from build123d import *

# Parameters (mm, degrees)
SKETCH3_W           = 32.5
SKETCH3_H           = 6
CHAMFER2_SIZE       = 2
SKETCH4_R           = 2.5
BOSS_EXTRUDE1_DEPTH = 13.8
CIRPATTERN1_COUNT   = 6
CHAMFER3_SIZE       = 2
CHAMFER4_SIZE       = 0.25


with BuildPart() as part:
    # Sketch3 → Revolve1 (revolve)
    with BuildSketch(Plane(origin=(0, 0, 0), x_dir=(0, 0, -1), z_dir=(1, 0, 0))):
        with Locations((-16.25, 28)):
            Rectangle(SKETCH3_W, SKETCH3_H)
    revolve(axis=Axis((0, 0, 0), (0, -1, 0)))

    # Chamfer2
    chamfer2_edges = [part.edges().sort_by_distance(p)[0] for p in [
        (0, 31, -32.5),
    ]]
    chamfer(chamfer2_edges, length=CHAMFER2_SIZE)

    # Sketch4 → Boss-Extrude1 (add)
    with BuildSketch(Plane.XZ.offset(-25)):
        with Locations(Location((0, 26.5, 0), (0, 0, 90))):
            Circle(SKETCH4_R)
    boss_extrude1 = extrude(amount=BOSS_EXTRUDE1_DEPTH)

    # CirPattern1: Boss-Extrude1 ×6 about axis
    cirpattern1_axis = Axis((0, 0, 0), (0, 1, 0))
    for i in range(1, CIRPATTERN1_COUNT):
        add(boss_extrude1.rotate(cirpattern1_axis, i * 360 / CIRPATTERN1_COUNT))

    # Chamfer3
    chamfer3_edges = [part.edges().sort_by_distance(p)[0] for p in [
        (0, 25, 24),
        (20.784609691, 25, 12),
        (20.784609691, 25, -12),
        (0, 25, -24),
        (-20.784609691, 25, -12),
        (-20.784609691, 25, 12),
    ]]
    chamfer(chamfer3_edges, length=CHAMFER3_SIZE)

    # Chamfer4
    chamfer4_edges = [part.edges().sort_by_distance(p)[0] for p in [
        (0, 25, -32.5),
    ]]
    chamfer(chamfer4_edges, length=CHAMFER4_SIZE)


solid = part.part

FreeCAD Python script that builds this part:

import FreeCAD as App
import Part
import Sketcher
from FreeCAD import Vector


def edges_at(feature, points):
    """Names of the edges that pass closest to the given points."""
    edges = feature.Shape.Edges
    near = lambda p: min(range(len(edges)), key=lambda i: edges[i].distToShape(Part.Vertex(*p))[0])
    return sorted({f"Edge{near(p) + 1}" for p in points})


def add_polygon(sketch, points):
    """Adds a closed chain of lines whose ends are joined by coincident constraints."""
    first, n = sketch.GeometryCount, len(points)
    for a, b in zip(points, points[1:] + points[:1]):
        sketch.addGeometry(Part.LineSegment(App.Vector(*a, 0), App.Vector(*b, 0)), False)
    for i in range(n):
        sketch.addConstraint(Sketcher.Constraint("Coincident", first + i, 2, first + (i + 1) % n, 1))

doc = App.newDocument("Part")
params = doc.addObject("Spreadsheet::Sheet", "Params")
for row, (alias, value) in enumerate([
    ("sketch1_width", "6 mm"),
    ("sketch1_height", "32.5 mm"),
    ("revolution_angle", "360 deg"),
    ("chamfer_size", "2 mm"),
    ("sketch2_diameter", "5 mm"),
    ("pad1_length", "13.8 mm"),
    ("chamfer2_size", "2 mm"),
    ("chamfer3_size", "0.25 mm"),
], start=1):
    params.set(f"A{row}", alias)
    params.set(f"B{row}", "=" + value)
    params.setAlias(f"B{row}", alias)

body = doc.addObject("PartDesign::Body", "Body")

# Sketch on YZ plane
sketch1 = body.newObject("Sketcher::SketchObject", "Sketch")
sketch1.AttachmentSupport = (doc.getObject("YZ_Plane"), [""])
sketch1.MapMode = "FlatFace"
add_polygon(sketch1, [(31, 32), (25, 32), (25, 0), (31, 0)])  # lines 0-3
sketch1.addConstraint(Sketcher.Constraint("Horizontal", 0))
sketch1.addConstraint(Sketcher.Constraint("Vertical", 1))
sketch1.addConstraint(Sketcher.Constraint("Horizontal", 2))
sketch1.addConstraint(Sketcher.Constraint("Vertical", 3))
sketch1.addConstraint(Sketcher.Constraint("PointOnObject", 1, 2, -1))
sketch1.addConstraint(Sketcher.Constraint("DistanceX", 0, 2, 0, 1, 6.0))
sketch1.addConstraint(Sketcher.Constraint("DistanceY", 1, 2, 1, 1, 32.5))
sketch1.addConstraint(Sketcher.Constraint("DistanceX", -1, 1, 0, 2, 25.0))
sketch1.setExpression("Constraints[9]", "Params.sketch1_width")
sketch1.setExpression("Constraints[10]", "Params.sketch1_height")
revolution = body.newObject("PartDesign::Revolution", "Revolution")
revolution.Profile = sketch1
revolution.ReferenceAxis = (sketch1, ["H_Axis"])
revolution.setExpression("Angle", "Params.revolution_angle")
doc.recompute()

chamfer = body.newObject("PartDesign::Chamfer", "Chamfer")
chamfer.Base = (revolution, edges_at(revolution, [(0, 31, -32.5)]))
chamfer.setExpression("Size", "Params.chamfer_size")

# Sketch on XZ plane
sketch2 = body.newObject("Sketcher::SketchObject", "Sketch001")
sketch2.AttachmentSupport = (doc.getObject("XZ_Plane"), [""])
sketch2.MapMode = "FlatFace"
sketch2.AttachmentOffset = App.Placement(Vector(0, 0, -25), App.Rotation())
sketch2.addGeometry(Part.Circle(Vector(0, 26.5, 0), Vector(0, 0, 1), 2.5), False)
sketch2.addConstraint(Sketcher.Constraint("PointOnObject", 0, 3, -2))
sketch2.addConstraint(Sketcher.Constraint("Diameter", 0, 5.0))
sketch2.addConstraint(Sketcher.Constraint("DistanceY", -1, 1, 0, 3, 26.5))
sketch2.setExpression("Constraints[1]", "Params.sketch2_diameter")
pad1 = body.newObject("PartDesign::Pad", "Pad")
pad1.Profile = sketch2
pad1.setExpression("Length", "Params.pad1_length")
doc.recompute()

polarpattern = body.newObject("PartDesign::PolarPattern", "PolarPattern")
polarpattern.Originals = [pad1]
polarpattern.Axis = (doc.getObject("Y_Axis"), [""])
polarpattern.Angle = 360
polarpattern.Occurrences = 6
body.Tip = polarpattern
doc.recompute()

chamfer2 = body.newObject("PartDesign::Chamfer", "Chamfer001")
chamfer2.Base = (polarpattern, edges_at(polarpattern, [
    (0, 25, 24),
    (20.785, 25, 12),
    (20.785, 25, -12),
    (0, 25, -24),
    (-20.785, 25, -12),
    (-20.785, 25, 12),
]))
chamfer2.setExpression("Size", "Params.chamfer2_size")
doc.recompute()

chamfer3 = body.newObject("PartDesign::Chamfer", "Chamfer002")
chamfer3.Base = (chamfer2, edges_at(chamfer2, [(0, 25, -32.5)]))
chamfer3.setExpression("Size", "Params.chamfer3_size")

doc.recompute()
